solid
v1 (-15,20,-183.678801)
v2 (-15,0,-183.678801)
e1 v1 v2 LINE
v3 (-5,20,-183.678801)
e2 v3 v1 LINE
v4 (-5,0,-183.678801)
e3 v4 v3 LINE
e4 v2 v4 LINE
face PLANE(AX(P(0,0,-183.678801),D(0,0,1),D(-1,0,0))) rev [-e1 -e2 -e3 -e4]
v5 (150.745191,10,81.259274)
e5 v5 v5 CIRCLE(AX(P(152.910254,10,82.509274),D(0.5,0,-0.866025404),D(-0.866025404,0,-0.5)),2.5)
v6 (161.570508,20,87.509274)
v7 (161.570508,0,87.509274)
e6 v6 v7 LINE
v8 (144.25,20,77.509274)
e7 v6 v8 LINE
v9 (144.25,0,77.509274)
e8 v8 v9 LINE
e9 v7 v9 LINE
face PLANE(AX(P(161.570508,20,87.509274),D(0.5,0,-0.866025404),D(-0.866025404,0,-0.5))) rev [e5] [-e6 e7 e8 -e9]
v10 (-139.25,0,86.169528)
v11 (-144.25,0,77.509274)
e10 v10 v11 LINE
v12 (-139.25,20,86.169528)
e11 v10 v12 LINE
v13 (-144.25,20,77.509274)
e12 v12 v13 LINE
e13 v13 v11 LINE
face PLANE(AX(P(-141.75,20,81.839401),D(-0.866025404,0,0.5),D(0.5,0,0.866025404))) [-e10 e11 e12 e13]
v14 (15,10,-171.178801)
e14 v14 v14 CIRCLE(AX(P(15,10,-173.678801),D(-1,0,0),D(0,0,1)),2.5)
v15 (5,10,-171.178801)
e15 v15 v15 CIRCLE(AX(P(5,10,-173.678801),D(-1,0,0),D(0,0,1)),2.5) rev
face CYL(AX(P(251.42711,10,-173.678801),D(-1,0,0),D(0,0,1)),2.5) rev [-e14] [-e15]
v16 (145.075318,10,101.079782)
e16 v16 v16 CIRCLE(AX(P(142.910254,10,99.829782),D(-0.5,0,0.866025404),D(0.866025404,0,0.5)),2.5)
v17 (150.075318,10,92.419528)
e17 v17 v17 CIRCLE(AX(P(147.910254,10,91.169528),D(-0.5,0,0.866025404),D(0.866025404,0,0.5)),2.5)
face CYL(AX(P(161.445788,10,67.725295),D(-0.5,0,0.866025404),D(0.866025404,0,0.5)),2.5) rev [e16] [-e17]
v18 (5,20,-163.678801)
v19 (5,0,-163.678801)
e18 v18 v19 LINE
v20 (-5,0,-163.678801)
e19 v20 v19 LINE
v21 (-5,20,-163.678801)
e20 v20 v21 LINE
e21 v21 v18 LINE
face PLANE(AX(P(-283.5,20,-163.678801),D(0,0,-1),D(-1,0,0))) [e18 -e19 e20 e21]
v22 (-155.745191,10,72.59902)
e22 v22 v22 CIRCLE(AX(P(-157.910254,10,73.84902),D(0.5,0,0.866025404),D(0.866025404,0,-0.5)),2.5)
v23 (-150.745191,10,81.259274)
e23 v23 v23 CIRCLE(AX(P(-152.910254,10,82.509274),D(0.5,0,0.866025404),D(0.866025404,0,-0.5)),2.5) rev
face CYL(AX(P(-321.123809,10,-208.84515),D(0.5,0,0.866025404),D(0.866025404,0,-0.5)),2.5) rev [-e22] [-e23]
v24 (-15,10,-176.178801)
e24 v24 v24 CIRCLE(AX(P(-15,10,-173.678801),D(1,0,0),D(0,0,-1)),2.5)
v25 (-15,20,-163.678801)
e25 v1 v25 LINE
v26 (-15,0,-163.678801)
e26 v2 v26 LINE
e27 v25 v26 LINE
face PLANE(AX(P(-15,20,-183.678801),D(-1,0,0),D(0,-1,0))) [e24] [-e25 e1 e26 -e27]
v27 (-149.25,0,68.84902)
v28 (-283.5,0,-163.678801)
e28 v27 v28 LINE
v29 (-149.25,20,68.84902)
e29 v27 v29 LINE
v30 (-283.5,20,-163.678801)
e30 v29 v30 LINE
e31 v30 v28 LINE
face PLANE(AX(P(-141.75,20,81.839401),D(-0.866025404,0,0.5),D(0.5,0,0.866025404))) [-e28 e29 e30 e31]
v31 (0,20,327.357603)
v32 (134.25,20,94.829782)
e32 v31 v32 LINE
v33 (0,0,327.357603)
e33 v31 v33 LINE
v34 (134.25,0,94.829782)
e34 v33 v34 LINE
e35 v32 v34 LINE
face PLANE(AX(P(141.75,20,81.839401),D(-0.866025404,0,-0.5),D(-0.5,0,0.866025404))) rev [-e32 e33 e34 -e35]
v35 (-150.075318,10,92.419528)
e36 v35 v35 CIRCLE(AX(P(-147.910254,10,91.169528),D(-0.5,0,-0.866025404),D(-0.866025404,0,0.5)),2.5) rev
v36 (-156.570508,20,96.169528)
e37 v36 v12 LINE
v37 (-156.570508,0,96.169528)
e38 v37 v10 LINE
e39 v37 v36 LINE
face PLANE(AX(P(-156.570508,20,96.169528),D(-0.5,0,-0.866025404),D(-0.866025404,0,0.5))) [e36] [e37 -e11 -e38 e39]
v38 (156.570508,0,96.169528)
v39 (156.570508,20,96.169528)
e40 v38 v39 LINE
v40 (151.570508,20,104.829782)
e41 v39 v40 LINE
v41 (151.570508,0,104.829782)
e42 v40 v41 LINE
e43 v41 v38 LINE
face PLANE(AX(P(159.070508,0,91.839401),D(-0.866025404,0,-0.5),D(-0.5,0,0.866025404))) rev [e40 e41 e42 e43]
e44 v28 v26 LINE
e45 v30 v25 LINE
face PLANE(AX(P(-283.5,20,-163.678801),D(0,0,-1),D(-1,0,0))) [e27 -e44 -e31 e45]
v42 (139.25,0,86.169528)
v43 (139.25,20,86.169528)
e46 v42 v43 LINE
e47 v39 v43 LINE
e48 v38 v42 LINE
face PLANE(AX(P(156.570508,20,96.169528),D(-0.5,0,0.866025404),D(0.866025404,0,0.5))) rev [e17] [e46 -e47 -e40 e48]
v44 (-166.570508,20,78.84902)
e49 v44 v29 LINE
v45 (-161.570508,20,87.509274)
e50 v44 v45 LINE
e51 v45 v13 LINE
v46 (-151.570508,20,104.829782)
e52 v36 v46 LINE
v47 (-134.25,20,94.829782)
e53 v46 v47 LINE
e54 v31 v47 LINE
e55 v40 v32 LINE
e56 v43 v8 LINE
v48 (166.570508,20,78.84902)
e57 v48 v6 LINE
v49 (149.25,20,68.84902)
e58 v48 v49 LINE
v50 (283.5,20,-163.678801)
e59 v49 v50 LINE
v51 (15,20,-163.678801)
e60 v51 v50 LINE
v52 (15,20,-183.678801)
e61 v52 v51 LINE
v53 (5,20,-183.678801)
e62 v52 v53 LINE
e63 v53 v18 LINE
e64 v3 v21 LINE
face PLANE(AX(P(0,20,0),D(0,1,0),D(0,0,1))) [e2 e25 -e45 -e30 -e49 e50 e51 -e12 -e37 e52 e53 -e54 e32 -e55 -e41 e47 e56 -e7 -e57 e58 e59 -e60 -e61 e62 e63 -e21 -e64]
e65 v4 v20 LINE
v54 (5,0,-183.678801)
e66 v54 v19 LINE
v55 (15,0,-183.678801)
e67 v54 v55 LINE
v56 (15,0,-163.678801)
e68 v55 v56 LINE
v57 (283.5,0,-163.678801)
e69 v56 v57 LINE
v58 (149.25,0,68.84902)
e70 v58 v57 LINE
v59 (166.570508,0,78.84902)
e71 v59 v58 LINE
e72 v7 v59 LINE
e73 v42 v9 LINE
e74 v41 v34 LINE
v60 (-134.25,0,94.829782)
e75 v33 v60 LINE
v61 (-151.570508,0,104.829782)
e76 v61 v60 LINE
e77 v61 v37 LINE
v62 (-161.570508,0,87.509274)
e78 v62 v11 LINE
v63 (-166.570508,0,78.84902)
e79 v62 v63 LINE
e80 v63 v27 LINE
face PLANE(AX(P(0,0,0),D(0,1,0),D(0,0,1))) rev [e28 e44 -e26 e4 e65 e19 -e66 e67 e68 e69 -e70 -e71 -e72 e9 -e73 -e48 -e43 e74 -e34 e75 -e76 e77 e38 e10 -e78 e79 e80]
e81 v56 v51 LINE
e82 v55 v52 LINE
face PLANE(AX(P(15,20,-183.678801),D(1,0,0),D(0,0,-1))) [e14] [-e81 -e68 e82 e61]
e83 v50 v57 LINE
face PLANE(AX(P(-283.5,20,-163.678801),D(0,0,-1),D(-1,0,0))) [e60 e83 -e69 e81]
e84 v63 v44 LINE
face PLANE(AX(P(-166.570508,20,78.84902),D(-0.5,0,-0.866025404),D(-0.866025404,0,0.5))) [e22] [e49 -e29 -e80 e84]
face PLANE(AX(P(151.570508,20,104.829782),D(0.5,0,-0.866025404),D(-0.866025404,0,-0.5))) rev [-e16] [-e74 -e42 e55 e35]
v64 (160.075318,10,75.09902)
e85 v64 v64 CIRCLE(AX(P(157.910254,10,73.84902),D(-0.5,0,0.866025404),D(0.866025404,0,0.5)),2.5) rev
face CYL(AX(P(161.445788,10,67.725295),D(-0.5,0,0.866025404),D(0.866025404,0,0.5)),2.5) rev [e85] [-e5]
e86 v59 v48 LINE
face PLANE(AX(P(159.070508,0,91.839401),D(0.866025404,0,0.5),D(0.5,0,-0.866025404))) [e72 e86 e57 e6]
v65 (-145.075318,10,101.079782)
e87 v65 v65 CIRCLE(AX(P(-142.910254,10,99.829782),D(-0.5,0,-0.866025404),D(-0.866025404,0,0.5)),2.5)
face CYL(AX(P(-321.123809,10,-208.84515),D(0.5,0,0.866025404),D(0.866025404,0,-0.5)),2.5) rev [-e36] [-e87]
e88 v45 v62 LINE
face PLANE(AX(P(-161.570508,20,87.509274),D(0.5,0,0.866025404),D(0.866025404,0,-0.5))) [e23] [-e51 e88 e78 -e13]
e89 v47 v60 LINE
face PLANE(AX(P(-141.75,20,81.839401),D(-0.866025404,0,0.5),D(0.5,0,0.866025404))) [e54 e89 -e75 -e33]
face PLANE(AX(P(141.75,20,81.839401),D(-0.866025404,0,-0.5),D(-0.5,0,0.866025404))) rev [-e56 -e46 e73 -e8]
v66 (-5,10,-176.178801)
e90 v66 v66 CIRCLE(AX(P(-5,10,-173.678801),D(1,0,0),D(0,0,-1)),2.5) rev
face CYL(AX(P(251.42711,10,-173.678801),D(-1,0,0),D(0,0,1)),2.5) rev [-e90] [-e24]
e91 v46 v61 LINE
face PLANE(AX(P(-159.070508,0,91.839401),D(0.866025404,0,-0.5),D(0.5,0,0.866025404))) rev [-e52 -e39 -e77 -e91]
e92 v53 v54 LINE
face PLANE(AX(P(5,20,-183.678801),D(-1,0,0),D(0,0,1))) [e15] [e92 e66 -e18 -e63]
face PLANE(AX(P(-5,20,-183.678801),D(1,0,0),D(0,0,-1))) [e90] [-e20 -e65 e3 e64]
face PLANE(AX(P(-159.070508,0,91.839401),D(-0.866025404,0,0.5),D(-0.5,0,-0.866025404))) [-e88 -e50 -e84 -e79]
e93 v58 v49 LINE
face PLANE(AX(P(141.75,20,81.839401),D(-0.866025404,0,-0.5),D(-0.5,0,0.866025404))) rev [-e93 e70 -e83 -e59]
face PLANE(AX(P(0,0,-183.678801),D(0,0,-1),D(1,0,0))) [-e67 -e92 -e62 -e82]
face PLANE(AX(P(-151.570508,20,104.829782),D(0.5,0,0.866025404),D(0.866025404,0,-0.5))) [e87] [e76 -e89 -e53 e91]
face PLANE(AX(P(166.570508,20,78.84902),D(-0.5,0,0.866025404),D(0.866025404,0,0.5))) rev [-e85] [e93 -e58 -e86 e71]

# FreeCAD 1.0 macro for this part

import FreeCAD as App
import Part
import Sketcher

V = App.Vector
Q = App.Units.Quantity

doc = App.newDocument("Part")
body = doc.addObject("PartDesign::Body", "Body")

# Sketch on XZ plane
sketch1 = body.newObject("Sketcher::SketchObject", "Sketch")
sketch1.AttachmentSupport = (doc.getObject("XZ_Plane"), [""])
sketch1.MapMode = "FlatFace"
sketch1.addGeometry([
    Part.LineSegment(V(284, -164, 0), V(-284, -164, 0)),
    Part.LineSegment(V(-284, -164, 0), V(0, 327, 0)),
    Part.LineSegment(V(0, 327, 0), V(284, -164, 0)),
], False)
sketch1.addConstraint([
    Sketcher.Constraint("Coincident", 0, 2, 1, 1),
    Sketcher.Constraint("Coincident", 1, 2, 2, 1),
    Sketcher.Constraint("Coincident", 2, 2, 0, 1),
    Sketcher.Constraint("Horizontal", 0),
    Sketcher.Constraint("PointOnObject", 1, 2, -2),
    Sketcher.Constraint("Equal", 1, 2),
    Sketcher.Constraint("DistanceX", 0, 2, 0, 1, 567.0),
    Sketcher.Constraint("Angle", 1, Q("60 deg")),
    Sketcher.Constraint("DistanceY", 0, 2, -1, 1, 163.678801),
])
pad1 = body.newObject("PartDesign::Pad", "Pad")
pad1.Profile = sketch1
pad1.Length = 20
pad1.Reversed = True

# Sketch on an angled plane
sketch2 = body.newObject("Sketcher::SketchObject", "Sketch001")
sketch2.Placement = App.Placement(V(141.75, 0, 81.839401), App.Rotation(V(0.5, 0, -0.866025404), V(0, 1, 0), V(0.866025404, 0, 0.5), "ZXY"))
sketch2.addGeometry([
    Part.LineSegment(V(-15, 20, 0), V(-15, 0, 0)),  # 0
    Part.LineSegment(V(-15, 0, 0), V(-5, 0, 0)),  # 1
    Part.LineSegment(V(-5, 0, 0), V(-5, 20, 0)),  # 2
    Part.LineSegment(V(-5, 20, 0), V(-15, 20, 0)),  # 3
    Part.LineSegment(V(5, 20, 0), V(5, 0, 0)),  # 4
    Part.LineSegment(V(5, 0, 0), V(15, 0, 0)),  # 5
    Part.LineSegment(V(15, 0, 0), V(15, 20, 0)),  # 6
    Part.LineSegment(V(15, 20, 0), V(5, 20, 0)),  # 7
], False)
sketch2.addConstraint([
    Sketcher.Constraint("Coincident", 0, 2, 1, 1),
    Sketcher.Constraint("Coincident", 1, 2, 2, 1),
    Sketcher.Constraint("Coincident", 2, 2, 3, 1),
    Sketcher.Constraint("Coincident", 3, 2, 0, 1),
    Sketcher.Constraint("Coincident", 4, 2, 5, 1),
    Sketcher.Constraint("Coincident", 5, 2, 6, 1),
    Sketcher.Constraint("Coincident", 6, 2, 7, 1),
    Sketcher.Constraint("Coincident", 7, 2, 4, 1),
    Sketcher.Constraint("Vertical", 0),
    Sketcher.Constraint("Horizontal", 1),
    Sketcher.Constraint("Vertical", 2),
    Sketcher.Constraint("Horizontal", 3),
    Sketcher.Constraint("Vertical", 4),
    Sketcher.Constraint("Horizontal", 5),
    Sketcher.Constraint("Vertical", 6),
    Sketcher.Constraint("Horizontal", 7),
    Sketcher.Constraint("Symmetric", 1, 2, 4, 2, -1, 1),
    Sketcher.Constraint("Symmetric", 0, 2, 5, 2, -2),
    Sketcher.Constraint("Horizontal", 3, 2, 6, 2),
    Sketcher.Constraint("DistanceX", 1, 1, 1, 2, 10.0),
    Sketcher.Constraint("DistanceY", 0, 2, 0, 1, 20.0),
    Sketcher.Constraint("DistanceX", 0, 2, -1, 1, 15.0),
])
pad2 = body.newObject("PartDesign::Pad", "Pad001")
pad2.Profile = sketch2
pad2.Length = 20

# Sketch on an angled plane
sketch3 = body.newObject("Sketcher::SketchObject", "Sketch002")
sketch3.Placement = App.Placement(V(-7.5, 0, 12.990381), App.Rotation(V(0.866025404, 0, 0.5), V(0, 1, 0), V(-0.5, 0, 0.866025404), "ZXY"))
sketch3.addGeometry(Part.Circle(V(173.7, 10, 0), V(0, 0, 1), 2.5), False)
sketch3.addConstraint([
    Sketcher.Constraint("Diameter", 0, 5.0),
    Sketcher.Constraint("DistanceY", -1, 1, 0, 3, 10.0),
    Sketcher.Constraint("DistanceX", -1, 1, 0, 3, 173.678801),
])
pocket1 = body.newObject("PartDesign::Pocket", "Pocket")
pocket1.Profile = sketch3
pocket1.Length = 30
doc.recompute()

datumplane = body.newObject("PartDesign::Plane", "DatumPlane")
datumplane.Placement = App.Placement(V(0, 0, 0), App.Rotation(V(-0.866025404, 0, 0.5), V(0, -1, 0), V(0.5, 0, 0.866025404), "ZXY"))
mirrored = body.newObject("PartDesign::Mirrored", "Mirrored")
mirrored.Originals = [pad2, pocket1]
mirrored.MirrorPlane = (datumplane, [""])
body.Tip = mirrored
doc.recompute()

mirrored2 = body.newObject("PartDesign::Mirrored", "Mirrored001")
mirrored2.Originals = [pad2, pocket1]
mirrored2.MirrorPlane = (doc.getObject("YZ_Plane"), [""])
body.Tip = mirrored2

doc.recompute()
